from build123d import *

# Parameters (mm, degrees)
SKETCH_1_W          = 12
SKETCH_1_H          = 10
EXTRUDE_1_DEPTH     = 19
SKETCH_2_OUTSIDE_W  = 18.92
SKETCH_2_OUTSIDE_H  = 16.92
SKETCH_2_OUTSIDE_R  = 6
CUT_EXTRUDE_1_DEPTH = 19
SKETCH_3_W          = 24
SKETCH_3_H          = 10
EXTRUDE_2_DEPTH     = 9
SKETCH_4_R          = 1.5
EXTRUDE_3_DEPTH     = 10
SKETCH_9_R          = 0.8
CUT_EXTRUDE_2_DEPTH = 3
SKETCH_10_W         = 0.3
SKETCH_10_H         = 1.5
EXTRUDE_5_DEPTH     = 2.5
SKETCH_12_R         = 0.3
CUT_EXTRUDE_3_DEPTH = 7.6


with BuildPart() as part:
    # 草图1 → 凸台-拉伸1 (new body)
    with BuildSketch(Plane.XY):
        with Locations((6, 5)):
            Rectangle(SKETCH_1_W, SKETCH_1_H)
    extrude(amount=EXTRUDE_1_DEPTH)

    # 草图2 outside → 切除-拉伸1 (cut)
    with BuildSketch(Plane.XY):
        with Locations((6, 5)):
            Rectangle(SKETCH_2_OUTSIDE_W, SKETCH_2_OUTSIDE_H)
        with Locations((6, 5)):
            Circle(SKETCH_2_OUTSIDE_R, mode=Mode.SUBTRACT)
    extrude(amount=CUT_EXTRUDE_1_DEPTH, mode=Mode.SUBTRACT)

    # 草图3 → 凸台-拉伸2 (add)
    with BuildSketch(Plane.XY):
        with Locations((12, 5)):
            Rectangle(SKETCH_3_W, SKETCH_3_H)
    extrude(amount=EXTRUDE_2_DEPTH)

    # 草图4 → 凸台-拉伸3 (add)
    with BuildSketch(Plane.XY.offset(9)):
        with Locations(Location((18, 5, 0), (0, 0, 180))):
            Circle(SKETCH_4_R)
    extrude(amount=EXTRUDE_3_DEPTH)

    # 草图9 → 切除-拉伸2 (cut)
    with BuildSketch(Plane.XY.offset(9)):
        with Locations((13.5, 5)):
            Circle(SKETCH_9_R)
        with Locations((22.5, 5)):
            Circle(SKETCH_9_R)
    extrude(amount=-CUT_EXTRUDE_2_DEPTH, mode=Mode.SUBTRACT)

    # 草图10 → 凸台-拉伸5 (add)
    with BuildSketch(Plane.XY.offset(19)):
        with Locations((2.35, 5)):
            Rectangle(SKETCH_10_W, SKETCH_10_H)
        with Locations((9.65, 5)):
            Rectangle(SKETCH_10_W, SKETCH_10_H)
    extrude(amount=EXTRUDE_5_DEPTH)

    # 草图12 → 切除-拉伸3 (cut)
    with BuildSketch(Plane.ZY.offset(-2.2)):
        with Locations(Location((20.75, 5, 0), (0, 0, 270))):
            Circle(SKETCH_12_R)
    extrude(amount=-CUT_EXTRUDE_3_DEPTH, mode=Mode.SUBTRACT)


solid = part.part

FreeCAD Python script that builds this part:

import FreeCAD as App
import Part
import Sketcher
from FreeCAD import Vector


def add_polygon(sketch, points):
    """Adds a closed chain of lines whose ends are joined by coincident constraints."""
    first, n = sketch.GeometryCount, len(points)
    for a, b in zip(points, points[1:] + points[:1]):
        sketch.addGeometry(Part.LineSegment(App.Vector(*a, 0), App.Vector(*b, 0)), False)
    for i in range(n):
        sketch.addConstraint(Sketcher.Constraint("Coincident", first + i, 2, first + (i + 1) % n, 1))

doc = App.newDocument("Part")
body = doc.addObject("PartDesign::Body", "Body")

sketch1 = body.newObject("Sketcher::SketchObject", "Sketch")
sketch1.AttachmentSupport = (doc.getObject("XY_Plane"), [""])
sketch1.MapMode = "FlatFace"
add_polygon(sketch1, [(0, 10), (0, 0), (12, 0), (12, 10)])
sketch1.addConstraint([
    Sketcher.Constraint("Vertical", 0),
    Sketcher.Constraint("Horizontal", 1),
    Sketcher.Constraint("Vertical", 2),
    Sketcher.Constraint("Horizontal", 3),
    Sketcher.Constraint("Coincident", 0, 2, -1, 1),
    Sketcher.Constraint("DistanceX", 1, 1, 1, 2, 12.0),
    Sketcher.Constraint("DistanceY", 0, 2, 0, 1, 10.0),
])
pad1 = body.newObject("PartDesign::Pad", "Pad")
pad1.Profile = sketch1
pad1.Length = 19

sketch2 = body.newObject("Sketcher::SketchObject", "Sketch001")
sketch2.AttachmentSupport = (doc.getObject("XY_Plane"), [""])
sketch2.MapMode = "FlatFace"
add_polygon(sketch2, [(-3, 13), (-3, -3), (15, -3), (15, 13)])
sketch2.addGeometry(Part.Circle(Vector(6, 5, 0), Vector(0, 0, 1), 6), False)
sketch2.addConstraint([
    Sketcher.Constraint("Vertical", 0),
    Sketcher.Constraint("Horizontal", 1),
    Sketcher.Constraint("Vertical", 2),
    Sketcher.Constraint("Horizontal", 3),
    Sketcher.Constraint("Diameter", 4, 12.0),
    Sketcher.Constraint("DistanceX", -1, 1, 4, 3, 6.0),
    Sketcher.Constraint("DistanceY", -1, 1, 4, 3, 5.0),
    Sketcher.Constraint("DistanceX", 1, 1, 1, 2, 18.92),
    Sketcher.Constraint("DistanceY", 0, 2, 0, 1, 16.92),
    Sketcher.Constraint("DistanceX", 0, 2, -1, 1, 3.46),
    Sketcher.Constraint("DistanceY", 0, 2, -1, 1, 3.46),
])
pocket1 = body.newObject("PartDesign::Pocket", "Pocket")
pocket1.Profile = sketch2
pocket1.Length = 19
pocket1.Reversed = True

sketch3 = body.newObject("Sketcher::SketchObject", "Sketch002")
sketch3.AttachmentSupport = (doc.getObject("XY_Plane"), [""])
sketch3.MapMode = "FlatFace"
add_polygon(sketch3, [(0, 10), (0, 0), (24, 0), (24, 10)])
sketch3.addConstraint([
    Sketcher.Constraint("Vertical", 0),
    Sketcher.Constraint("Horizontal", 1),
    Sketcher.Constraint("Vertical", 2),
    Sketcher.Constraint("Horizontal", 3),
    Sketcher.Constraint("Coincident", 0, 2, -1, 1),
    Sketcher.Constraint("DistanceX", 1, 1, 1, 2, 24.0),
    Sketcher.Constraint("DistanceY", 0, 2, 0, 1, 10.0),
])
pad2 = body.newObject("PartDesign::Pad", "Pad001")
pad2.Profile = sketch3
pad2.Length = 9

sketch4 = body.newObject("Sketcher::SketchObject", "Sketch003")
sketch4.AttachmentSupport = (doc.getObject("XY_Plane"), [""])
sketch4.MapMode = "FlatFace"
sketch4.AttachmentOffset = App.Placement(Vector(0, 0, 9), App.Rotation())
sketch4.addGeometry(Part.Circle(Vector(18, 5, 0), Vector(0, 0, 1), 1.5), False)
sketch4.addConstraint([
    Sketcher.Constraint("Diameter", 0, 3.0),
    Sketcher.Constraint("DistanceX", -1, 1, 0, 3, 18.0),
    Sketcher.Constraint("DistanceY", -1, 1, 0, 3, 5.0),
])
pad3 = body.newObject("PartDesign::Pad", "Pad002")
pad3.Profile = sketch4
pad3.Length = 10

sketch5 = body.newObject("Sketcher::SketchObject", "Sketch004")
sketch5.AttachmentSupport = (doc.getObject("XY_Plane"), [""])
sketch5.MapMode = "FlatFace"
sketch5.AttachmentOffset = App.Placement(Vector(0, 0, 9), App.Rotation())
sketch5.addGeometry([
    Part.Circle(Vector(13.5, 5, 0), Vector(0, 0, 1), 0.8),
    Part.Circle(Vector(22.5, 5, 0), Vector(0, 0, 1), 0.8),
], False)
sketch5.addConstraint([
    Sketcher.Constraint("Equal", 0, 1),
    Sketcher.Constraint("Horizontal", 0, 3, 1, 3),
    Sketcher.Constraint("Diameter", 0, 1.6),
    Sketcher.Constraint("DistanceY", -1, 1, 0, 3, 5.0),
    Sketcher.Constraint("DistanceX", 0, 3, 1, 3, 9.0),
    Sketcher.Constraint("DistanceX", -1, 1, 0, 3, 13.5),
])
pocket2 = body.newObject("PartDesign::Pocket", "Pocket001")
pocket2.Profile = sketch5
pocket2.Length = 3

sketch6 = body.newObject("Sketcher::SketchObject", "Sketch005")
sketch6.AttachmentSupport = (doc.getObject("XY_Plane"), [""])
sketch6.MapMode = "FlatFace"
sketch6.AttachmentOffset = App.Placement(Vector(0, 0, 19), App.Rotation())
add_polygon(sketch6, [(2.2, 5.75), (2.2, 4.25), (2.5, 4.25), (2.5, 5.75)])
add_polygon(sketch6, [(9.5, 5.75), (9.5, 4.25), (9.8, 4.25), (9.8, 5.75)])
sketch6.addConstraint([
    Sketcher.Constraint("Vertical", 0),
    Sketcher.Constraint("Horizontal", 1),
    Sketcher.Constraint("Vertical", 2),
    Sketcher.Constraint("Horizontal", 3),
    Sketcher.Constraint("Vertical", 4),
    Sketcher.Constraint("Horizontal", 5),
    Sketcher.Constraint("Vertical", 6),
    Sketcher.Constraint("Horizontal", 7),
    Sketcher.Constraint("Horizontal", 1, 2, 4, 2),
    Sketcher.Constraint("Horizontal", 3, 2, 6, 2),
    Sketcher.Constraint("Equal", 3, 5),
    Sketcher.Constraint("DistanceX", 1, 1, 1, 2, 0.3),
    Sketcher.Constraint("DistanceY", 0, 2, 0, 1, 1.5),
    Sketcher.Constraint("DistanceX", 1, 2, 4, 2, 7.0),
    Sketcher.Constraint("DistanceX", -1, 1, 0, 2, 2.2),
    Sketcher.Constraint("DistanceY", -1, 1, 0, 2, 4.25),
])
pad4 = body.newObject("PartDesign::Pad", "Pad003")
pad4.Profile = sketch6
pad4.Length = 2.5

sketch7 = body.newObject("Sketcher::SketchObject", "Sketch006")
sketch7.AttachmentSupport = (doc.getObject("YZ_Plane"), [""])
sketch7.MapMode = "FlatFace"
sketch7.AttachmentOffset = App.Placement(Vector(0, 0, 2.2), App.Rotation())
sketch7.addGeometry(Part.Circle(Vector(5, 20.75, 0), Vector(0, 0, 1), 0.3), False)
sketch7.addConstraint([
    Sketcher.Constraint("Diameter", 0, 0.6),
    Sketcher.Constraint("DistanceX", -1, 1, 0, 3, 5.0),
    Sketcher.Constraint("DistanceY", -1, 1, 0, 3, 20.75),
])
pocket3 = body.newObject("PartDesign::Pocket", "Pocket002")
pocket3.Profile = sketch7
pocket3.Length = 7.6
pocket3.Reversed = True

doc.recompute()
